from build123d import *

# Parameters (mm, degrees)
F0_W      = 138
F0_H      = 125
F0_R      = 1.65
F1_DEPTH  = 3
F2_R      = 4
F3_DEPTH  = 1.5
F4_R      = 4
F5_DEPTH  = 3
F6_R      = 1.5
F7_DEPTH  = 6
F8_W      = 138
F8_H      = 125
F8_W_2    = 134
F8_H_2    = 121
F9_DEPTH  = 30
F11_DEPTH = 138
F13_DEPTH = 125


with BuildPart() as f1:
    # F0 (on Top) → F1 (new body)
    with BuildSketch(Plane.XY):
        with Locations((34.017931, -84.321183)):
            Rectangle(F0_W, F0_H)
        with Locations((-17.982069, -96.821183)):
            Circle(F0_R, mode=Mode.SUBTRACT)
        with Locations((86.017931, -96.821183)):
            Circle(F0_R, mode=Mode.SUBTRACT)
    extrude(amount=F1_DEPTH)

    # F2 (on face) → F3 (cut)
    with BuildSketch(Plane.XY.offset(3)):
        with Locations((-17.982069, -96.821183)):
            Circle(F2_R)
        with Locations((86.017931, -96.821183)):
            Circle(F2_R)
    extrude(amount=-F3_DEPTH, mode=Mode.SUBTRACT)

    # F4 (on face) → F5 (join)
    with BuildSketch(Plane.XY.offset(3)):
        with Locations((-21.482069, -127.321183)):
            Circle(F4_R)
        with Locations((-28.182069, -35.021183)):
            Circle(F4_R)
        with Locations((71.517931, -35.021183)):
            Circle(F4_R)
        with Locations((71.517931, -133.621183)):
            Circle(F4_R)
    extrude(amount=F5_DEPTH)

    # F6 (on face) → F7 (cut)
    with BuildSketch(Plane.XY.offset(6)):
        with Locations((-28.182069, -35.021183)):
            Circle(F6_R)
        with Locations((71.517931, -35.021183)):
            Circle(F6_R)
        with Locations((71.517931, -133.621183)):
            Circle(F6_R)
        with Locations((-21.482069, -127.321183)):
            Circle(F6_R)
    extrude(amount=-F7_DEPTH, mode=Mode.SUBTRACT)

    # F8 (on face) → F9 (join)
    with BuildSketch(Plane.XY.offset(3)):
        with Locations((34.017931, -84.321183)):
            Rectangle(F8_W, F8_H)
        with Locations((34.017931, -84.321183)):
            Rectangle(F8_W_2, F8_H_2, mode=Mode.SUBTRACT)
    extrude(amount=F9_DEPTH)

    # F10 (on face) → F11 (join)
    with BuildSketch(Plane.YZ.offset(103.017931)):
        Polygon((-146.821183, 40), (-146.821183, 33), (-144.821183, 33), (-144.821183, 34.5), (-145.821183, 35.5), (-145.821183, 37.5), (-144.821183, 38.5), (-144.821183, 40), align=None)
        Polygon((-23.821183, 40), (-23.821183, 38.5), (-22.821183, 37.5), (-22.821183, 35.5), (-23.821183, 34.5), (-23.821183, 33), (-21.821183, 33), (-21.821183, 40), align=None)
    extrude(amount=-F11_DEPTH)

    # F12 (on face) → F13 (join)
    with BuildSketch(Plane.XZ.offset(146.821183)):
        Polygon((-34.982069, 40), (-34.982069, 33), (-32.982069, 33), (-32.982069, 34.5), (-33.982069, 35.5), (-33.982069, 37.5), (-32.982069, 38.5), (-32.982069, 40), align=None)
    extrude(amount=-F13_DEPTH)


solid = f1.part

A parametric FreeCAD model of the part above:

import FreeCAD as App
import Part
import Sketcher
from FreeCAD import Vector
Q = App.Units.Quantity


def add_polygon(sketch, points):
    """Adds a closed chain of lines whose ends are joined by coincident constraints."""
    first, n = sketch.GeometryCount, len(points)
    for a, b in zip(points, points[1:] + points[:1]):
        sketch.addGeometry(Part.LineSegment(App.Vector(*a, 0), App.Vector(*b, 0)), False)
    for i in range(n):
        sketch.addConstraint(Sketcher.Constraint("Coincident", first + i, 2, first + (i + 1) % n, 1))

doc = App.newDocument("Part")
body = doc.addObject("PartDesign::Body", "Body")

# Sketch on XY plane
sketch1 = body.newObject("Sketcher::SketchObject", "Sketch")
sketch1.AttachmentSupport = (doc.getObject("XY_Plane"), [""])
sketch1.MapMode = "FlatFace"
add_polygon(sketch1, [(-34.982069, -21.821183), (-34.982069, -146.821183), (103.017931, -146.821183), (103.017931, -21.821183)])  # lines 0-3
sketch1.addGeometry(Part.Circle(Vector(-17.982069, -96.821183, 0), Vector(0, 0, 1), 1.65), False)  # 4
sketch1.addGeometry(Part.Circle(Vector(86.017931, -96.821183, 0), Vector(0, 0, 1), 1.65), False)  # 5
sketch1.addConstraint(Sketcher.Constraint("Vertical", 0))
sketch1.addConstraint(Sketcher.Constraint("Horizontal", 1))
sketch1.addConstraint(Sketcher.Constraint("Vertical", 2))
sketch1.addConstraint(Sketcher.Constraint("Horizontal", 3))
sketch1.addConstraint(Sketcher.Constraint("Equal", 4, 5))
sketch1.addConstraint(Sketcher.Constraint("Horizontal", 4, 3, 5, 3))
sketch1.addConstraint(Sketcher.Constraint("Diameter", 4, Q("3.3 mm")))
sketch1.addConstraint(Sketcher.Constraint("DistanceX", 1, 1, 1, 2, Q("138 mm")))
sketch1.addConstraint(Sketcher.Constraint("DistanceY", 0, 2, 0, 1, Q("125 mm")))
sketch1.addConstraint(Sketcher.Constraint("DistanceX", 4, 3, 5, 3, Q("104 mm")))
sketch1.addConstraint(Sketcher.Constraint("DistanceX", 0, 2, 4, 3, Q("17 mm")))
sketch1.addConstraint(Sketcher.Constraint("DistanceY", 0, 2, 4, 3, Q("50 mm")))
sketch1.addConstraint(Sketcher.Constraint("DistanceX", 4, 3, -1, 1, Q("17.982069 mm")))
sketch1.addConstraint(Sketcher.Constraint("DistanceY", 4, 3, -1, 1, Q("96.821183 mm")))
pad1 = body.newObject("PartDesign::Pad", "Pad")
pad1.Profile = sketch1
pad1.Length = 3

# Sketch on XY plane
sketch2 = body.newObject("Sketcher::SketchObject", "Sketch001")
sketch2.AttachmentSupport = (doc.getObject("XY_Plane"), [""])
sketch2.MapMode = "FlatFace"
sketch2.AttachmentOffset = App.Placement(Vector(0, 0, 3), App.Rotation())
sketch2.addGeometry(Part.Circle(Vector(-17.982069, -96.821183, 0), Vector(0, 0, 1), 4), False)
sketch2.addGeometry(Part.Circle(Vector(86.017931, -96.821183, 0), Vector(0, 0, 1), 4), False)
sketch2.addConstraint(Sketcher.Constraint("Equal", 0, 1))
sketch2.addConstraint(Sketcher.Constraint("Horizontal", 0, 3, 1, 3))
sketch2.addConstraint(Sketcher.Constraint("Diameter", 0, Q("8 mm")))
sketch2.addConstraint(Sketcher.Constraint("DistanceX", 0, 3, 1, 3, Q("104 mm")))
sketch2.addConstraint(Sketcher.Constraint("DistanceX", 0, 3, -1, 1, Q("17.982069 mm")))
sketch2.addConstraint(Sketcher.Constraint("DistanceY", 0, 3, -1, 1, Q("96.821183 mm")))
pocket1 = body.newObject("PartDesign::Pocket", "Pocket")
pocket1.Profile = sketch2
pocket1.Length = 1.5

# Sketch on XY plane
sketch3 = body.newObject("Sketcher::SketchObject", "Sketch002")
sketch3.AttachmentSupport = (doc.getObject("XY_Plane"), [""])
sketch3.MapMode = "FlatFace"
sketch3.AttachmentOffset = App.Placement(Vector(0, 0, 3), App.Rotation())
sketch3.addGeometry(Part.Circle(Vector(-21.482069, -127.321183, 0), Vector(0, 0, 1), 4), False)
sketch3.addGeometry(Part.Circle(Vector(-28.182069, -35.021183, 0), Vector(0, 0, 1), 4), False)
sketch3.addGeometry(Part.Circle(Vector(71.517931, -35.021183, 0), Vector(0, 0, 1), 4), False)
sketch3.addGeometry(Part.Circle(Vector(71.517931, -133.621183, 0), Vector(0, 0, 1), 4), False)
sketch3.addConstraint(Sketcher.Constraint("Equal", 0, 1))
sketch3.addConstraint(Sketcher.Constraint("Equal", 1, 2))
sketch3.addConstraint(Sketcher.Constraint("Equal", 2, 3))
sketch3.addConstraint(Sketcher.Constraint("Horizontal", 1, 3, 2, 3))
sketch3.addConstraint(Sketcher.Constraint("Vertical", 2, 3, 3, 3))
sketch3.addConstraint(Sketcher.Constraint("Diameter", 0, Q("8 mm")))
sketch3.addConstraint(Sketcher.Constraint("DistanceX", 0, 3, 2, 3, Q("93 mm")))
sketch3.addConstraint(Sketcher.Constraint("DistanceX", 1, 3, 0, 3, Q("6.7 mm")))
sketch3.addConstraint(Sketcher.Constraint("DistanceY", 0, 3, 1, 3, Q("92.3 mm")))
sketch3.addConstraint(Sketcher.Constraint("DistanceY", 3, 3, 0, 3, Q("6.3 mm")))
sketch3.addConstraint(Sketcher.Constraint("DistanceX", 0, 3, -1, 1, Q("21.482069 mm")))
sketch3.addConstraint(Sketcher.Constraint("DistanceY", 0, 3, -1, 1, Q("127.321183 mm")))
pad2 = body.newObject("PartDesign::Pad", "Pad001")
pad2.Profile = sketch3
pad2.Length = 3

# Sketch on XY plane
sketch4 = body.newObject("Sketcher::SketchObject", "Sketch003")
sketch4.AttachmentSupport = (doc.getObject("XY_Plane"), [""])
sketch4.MapMode = "FlatFace"
sketch4.AttachmentOffset = App.Placement(Vector(0, 0, 6), App.Rotation())
sketch4.addGeometry(Part.Circle(Vector(-28.182069, -35.021183, 0), Vector(0, 0, 1), 1.5), False)
sketch4.addGeometry(Part.Circle(Vector(71.517931, -35.021183, 0), Vector(0, 0, 1), 1.5), False)
sketch4.addGeometry(Part.Circle(Vector(71.517931, -133.621183, 0), Vector(0, 0, 1), 1.5), False)
sketch4.addGeometry(Part.Circle(Vector(-21.482069, -127.321183, 0), Vector(0, 0, 1), 1.5), False)
sketch4.addConstraint(Sketcher.Constraint("Equal", 0, 1))
sketch4.addConstraint(Sketcher.Constraint("Equal", 1, 2))
sketch4.addConstraint(Sketcher.Constraint("Equal", 2, 3))
sketch4.addConstraint(Sketcher.Constraint("Horizontal", 0, 3, 1, 3))
sketch4.addConstraint(Sketcher.Constraint("Vertical", 1, 3, 2, 3))
sketch4.addConstraint(Sketcher.Constraint("Diameter", 0, Q("3 mm")))
sketch4.addConstraint(Sketcher.Constraint("DistanceX", 3, 3, 2, 3, Q("93 mm")))
sketch4.addConstraint(Sketcher.Constraint("DistanceX", 0, 3, 1, 3, Q("99.7 mm")))
sketch4.addConstraint(Sketcher.Constraint("DistanceY", 2, 3, 1, 3, Q("98.6 mm")))
sketch4.addConstraint(Sketcher.Constraint("DistanceY", 3, 3, 0, 3, Q("92.3 mm")))
sketch4.addConstraint(Sketcher.Constraint("DistanceX", 0, 3, -1, 1, Q("28.182069 mm")))
sketch4.addConstraint(Sketcher.Constraint("DistanceY", 0, 3, -1, 1, Q("35.021183 mm")))
pocket2 = body.newObject("PartDesign::Pocket", "Pocket001")
pocket2.Profile = sketch4
pocket2.Length = 6

# Sketch on XY plane
sketch5 = body.newObject("Sketcher::SketchObject", "Sketch004")
sketch5.AttachmentSupport = (doc.getObject("XY_Plane"), [""])
sketch5.MapMode = "FlatFace"
sketch5.AttachmentOffset = App.Placement(Vector(0, 0, 3), App.Rotation())
add_polygon(sketch5, [(-34.982069, -21.821183), (-34.982069, -146.821183), (103.017931, -146.821183), (103.017931, -21.821183)])  # lines 0-3
add_polygon(sketch5, [(101.017931, -144.821183), (-32.982069, -144.821183), (-32.982069, -23.821183), (101.017931, -23.821183)])  # lines 4-7
sketch5.addConstraint(Sketcher.Constraint("Vertical", 0))
sketch5.addConstraint(Sketcher.Constraint("Horizontal", 1))
sketch5.addConstraint(Sketcher.Constraint("Vertical", 2))
sketch5.addConstraint(Sketcher.Constraint("Horizontal", 3))
sketch5.addConstraint(Sketcher.Constraint("Horizontal", 4))
sketch5.addConstraint(Sketcher.Constraint("Vertical", 5))
sketch5.addConstraint(Sketcher.Constraint("Horizontal", 6))
sketch5.addConstraint(Sketcher.Constraint("Vertical", 7))
sketch5.addConstraint(Sketcher.Constraint("DistanceX", 1, 1, 1, 2, Q("138 mm")))
sketch5.addConstraint(Sketcher.Constraint("DistanceX", 4, 2, 4, 1, Q("134 mm")))
sketch5.addConstraint(Sketcher.Constraint("DistanceY", 0, 2, 0, 1, Q("125 mm")))
sketch5.addConstraint(Sketcher.Constraint("DistanceY", 5, 1, 5, 2, Q("121 mm")))
sketch5.addConstraint(Sketcher.Constraint("DistanceX", 0, 2, 4, 2, Q("2 mm")))
sketch5.addConstraint(Sketcher.Constraint("DistanceY", 0, 2, 4, 2, Q("2 mm")))
sketch5.addConstraint(Sketcher.Constraint("DistanceX", 0, 2, -1, 1, Q("34.982069 mm")))
sketch5.addConstraint(Sketcher.Constraint("DistanceY", 0, 2, -1, 1, Q("146.821183 mm")))
pad3 = body.newObject("PartDesign::Pad", "Pad002")
pad3.Profile = sketch5
pad3.Length = 30

# Sketch on YZ plane
sketch6 = body.newObject("Sketcher::SketchObject", "Sketch005")
sketch6.AttachmentSupport = (doc.getObject("YZ_Plane"), [""])
sketch6.MapMode = "FlatFace"
sketch6.AttachmentOffset = App.Placement(Vector(0, 0, 103.017931), App.Rotation())
add_polygon(sketch6, [(-146.821183, 40), (-146.821183, 33), (-144.821183, 33), (-144.821183, 34.5), (-145.821183, 35.5), (-145.821183, 37.5), (-144.821183, 38.5), (-144.821183, 40)])  # lines 0-7
add_polygon(sketch6, [(-23.821183, 40), (-23.821183, 38.5), (-22.821183, 37.5), (-22.821183, 35.5), (-23.821183, 34.5), (-23.821183, 33), (-21.821183, 33), (-21.821183, 40)])  # lines 8-15
sketch6.addConstraint(Sketcher.Constraint("Vertical", 0))
sketch6.addConstraint(Sketcher.Constraint("Horizontal", 1))
sketch6.addConstraint(Sketcher.Constraint("Vertical", 2))
sketch6.addConstraint(Sketcher.Constraint("Vertical", 4))
sketch6.addConstraint(Sketcher.Constraint("Vertical", 6))
sketch6.addConstraint(Sketcher.Constraint("Horizontal", 7))
sketch6.addConstraint(Sketcher.Constraint("Vertical", 8))
sketch6.addConstraint(Sketcher.Constraint("Vertical", 10))
sketch6.addConstraint(Sketcher.Constraint("Vertical", 12))
sketch6.addConstraint(Sketcher.Constraint("Horizontal", 13))
sketch6.addConstraint(Sketcher.Constraint("Vertical", 14))
sketch6.addConstraint(Sketcher.Constraint("Horizontal", 15))
sketch6.addConstraint(Sketcher.Constraint("Perpendicular", 3, 5))
sketch6.addConstraint(Sketcher.Constraint("Perpendicular", 5, 9))
sketch6.addConstraint(Sketcher.Constraint("Perpendicular", 9, 11))
sketch6.addConstraint(Sketcher.Constraint("Horizontal", 5, 2, 8, 2))
sketch6.addConstraint(Sketcher.Constraint("Horizontal", 4, 2, 9, 2))
sketch6.addConstraint(Sketcher.Constraint("Horizontal", 3, 2, 10, 2))
sketch6.addConstraint(Sketcher.Constraint("Horizontal", 2, 2, 11, 2))
sketch6.addConstraint(Sketcher.Constraint("Horizontal", 1, 2, 12, 2))
sketch6.addConstraint(Sketcher.Constraint("Horizontal", 7, 2, 14, 2))
sketch6.addConstraint(Sketcher.Constraint("Vertical", 2, 2, 5, 2))
sketch6.addConstraint(Sketcher.Constraint("Vertical", 8, 2, 11, 2))
sketch6.addConstraint(Sketcher.Constraint("Equal", 7, 13))
sketch6.addConstraint(Sketcher.Constraint("Equal", 15, 4))
sketch6.addConstraint(Sketcher.Constraint("Equal", 2, 6))
sketch6.addConstraint(Sketcher.Constraint("DistanceX", 1, 1, 1, 2, Q("2 mm")))
sketch6.addConstraint(Sketcher.Constraint("DistanceY", 0, 2, 0, 1, Q("7 mm")))
sketch6.addConstraint(Sketcher.Constraint("DistanceY", 2, 1, 2, 2, Q("1.5 mm")))
sketch6.addConstraint(Sketcher.Constraint("DistanceY", -1, 1, 0, 2, Q("33 mm")))
sketch6.addConstraint(Sketcher.Constraint("DistanceX", 5, 2, 8, 2, Q("121 mm")))
sketch6.addConstraint(Sketcher.Constraint("DistanceX", 0, 2, -1, 1, Q("146.821183 mm")))
pad4 = body.newObject("PartDesign::Pad", "Pad003")
pad4.Profile = sketch6
pad4.Length = 138
pad4.Reversed = True

# Sketch on XZ plane
sketch7 = body.newObject("Sketcher::SketchObject", "Sketch006")
sketch7.AttachmentSupport = (doc.getObject("XZ_Plane"), [""])
sketch7.MapMode = "FlatFace"
sketch7.AttachmentOffset = App.Placement(Vector(0, 0, 146.821183), App.Rotation())
add_polygon(sketch7, [(-34.982069, 40), (-34.982069, 33), (-32.982069, 33), (-32.982069, 34.5), (-33.982069, 35.5), (-33.982069, 37.5), (-32.982069, 38.5), (-32.982069, 40)])  # lines 0-7
sketch7.addConstraint(Sketcher.Constraint("Vertical", 0))
sketch7.addConstraint(Sketcher.Constraint("Horizontal", 1))
sketch7.addConstraint(Sketcher.Constraint("Vertical", 2))
sketch7.addConstraint(Sketcher.Constraint("Vertical", 4))
sketch7.addConstraint(Sketcher.Constraint("Vertical", 6))
sketch7.addConstraint(Sketcher.Constraint("Horizontal", 7))
sketch7.addConstraint(Sketcher.Constraint("Perpendicular", 3, 5))
sketch7.addConstraint(Sketcher.Constraint("Vertical", 2, 2, 5, 2))
sketch7.addConstraint(Sketcher.Constraint("Equal", 7, 4))
sketch7.addConstraint(Sketcher.Constraint("Equal", 2, 6))
sketch7.addConstraint(Sketcher.Constraint("Equal", 3, 5))
sketch7.addConstraint(Sketcher.Constraint("DistanceX", 1, 1, 1, 2, Q("2 mm")))
sketch7.addConstraint(Sketcher.Constraint("DistanceY", 0, 2, 0, 1, Q("7 mm")))
sketch7.addConstraint(Sketcher.Constraint("DistanceY", 2, 1, 2, 2, Q("1.5 mm")))
sketch7.addConstraint(Sketcher.Constraint("DistanceY", -1, 1, 0, 2, Q("33 mm")))
sketch7.addConstraint(Sketcher.Constraint("DistanceX", 0, 2, -1, 1, Q("34.982069 mm")))
pad5 = body.newObject("PartDesign::Pad", "Pad004")
pad5.Profile = sketch7
pad5.Length = 125
pad5.Reversed = True

doc.recompute()
